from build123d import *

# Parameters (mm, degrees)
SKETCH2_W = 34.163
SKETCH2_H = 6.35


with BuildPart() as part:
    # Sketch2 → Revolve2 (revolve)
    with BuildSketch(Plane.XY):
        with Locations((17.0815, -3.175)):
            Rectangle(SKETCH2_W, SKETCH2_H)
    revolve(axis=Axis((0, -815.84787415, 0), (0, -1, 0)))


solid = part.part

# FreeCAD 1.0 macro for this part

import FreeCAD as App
import Part
import Sketcher

V = App.Vector
Q = App.Units.Quantity


def add_polygon(sketch, points):
    """Adds a closed chain of lines whose ends are joined by coincident constraints."""
    first, n = sketch.GeometryCount, len(points)
    for a, b in zip(points, points[1:] + points[:1]):
        sketch.addGeometry(Part.LineSegment(App.Vector(*a, 0), App.Vector(*b, 0)), False)
    for i in range(n):
        sketch.addConstraint(Sketcher.Constraint("Coincident", first + i, 2, first + (i + 1) % n, 1))

doc = App.newDocument("Part")
body = doc.addObject("PartDesign::Body", "Body")

# Sketch on XY plane
sketch1 = body.newObject("Sketcher::SketchObject", "Sketch")
sketch1.AttachmentSupport = (doc.getObject("XY_Plane"), [""])
sketch1.MapMode = "FlatFace"
add_polygon(sketch1, [(0, 0), (0, -6), (34, -6), (34, 0)])  # lines 0-3
sketch1.addConstraint(Sketcher.Constraint("Vertical", 0))
sketch1.addConstraint(Sketcher.Constraint("Horizontal", 1))
sketch1.addConstraint(Sketcher.Constraint("Vertical", 2))
sketch1.addConstraint(Sketcher.Constraint("Horizontal", 3))
sketch1.addConstraint(Sketcher.Constraint("Coincident", 3, 2, -1, 1))
sketch1.addConstraint(Sketcher.Constraint("DistanceY", 0, 2, 0, 1, Q("0.25 in")))
sketch1.addConstraint(Sketcher.Constraint("DistanceX", 1, 1, 1, 2, Q("1.345 in")))
revolution = body.newObject("PartDesign::Revolution", "Revolution")
revolution.Profile = sketch1
revolution.ReferenceAxis = (sketch1, ["V_Axis"])
revolution.Angle = 360

doc.recompute()
